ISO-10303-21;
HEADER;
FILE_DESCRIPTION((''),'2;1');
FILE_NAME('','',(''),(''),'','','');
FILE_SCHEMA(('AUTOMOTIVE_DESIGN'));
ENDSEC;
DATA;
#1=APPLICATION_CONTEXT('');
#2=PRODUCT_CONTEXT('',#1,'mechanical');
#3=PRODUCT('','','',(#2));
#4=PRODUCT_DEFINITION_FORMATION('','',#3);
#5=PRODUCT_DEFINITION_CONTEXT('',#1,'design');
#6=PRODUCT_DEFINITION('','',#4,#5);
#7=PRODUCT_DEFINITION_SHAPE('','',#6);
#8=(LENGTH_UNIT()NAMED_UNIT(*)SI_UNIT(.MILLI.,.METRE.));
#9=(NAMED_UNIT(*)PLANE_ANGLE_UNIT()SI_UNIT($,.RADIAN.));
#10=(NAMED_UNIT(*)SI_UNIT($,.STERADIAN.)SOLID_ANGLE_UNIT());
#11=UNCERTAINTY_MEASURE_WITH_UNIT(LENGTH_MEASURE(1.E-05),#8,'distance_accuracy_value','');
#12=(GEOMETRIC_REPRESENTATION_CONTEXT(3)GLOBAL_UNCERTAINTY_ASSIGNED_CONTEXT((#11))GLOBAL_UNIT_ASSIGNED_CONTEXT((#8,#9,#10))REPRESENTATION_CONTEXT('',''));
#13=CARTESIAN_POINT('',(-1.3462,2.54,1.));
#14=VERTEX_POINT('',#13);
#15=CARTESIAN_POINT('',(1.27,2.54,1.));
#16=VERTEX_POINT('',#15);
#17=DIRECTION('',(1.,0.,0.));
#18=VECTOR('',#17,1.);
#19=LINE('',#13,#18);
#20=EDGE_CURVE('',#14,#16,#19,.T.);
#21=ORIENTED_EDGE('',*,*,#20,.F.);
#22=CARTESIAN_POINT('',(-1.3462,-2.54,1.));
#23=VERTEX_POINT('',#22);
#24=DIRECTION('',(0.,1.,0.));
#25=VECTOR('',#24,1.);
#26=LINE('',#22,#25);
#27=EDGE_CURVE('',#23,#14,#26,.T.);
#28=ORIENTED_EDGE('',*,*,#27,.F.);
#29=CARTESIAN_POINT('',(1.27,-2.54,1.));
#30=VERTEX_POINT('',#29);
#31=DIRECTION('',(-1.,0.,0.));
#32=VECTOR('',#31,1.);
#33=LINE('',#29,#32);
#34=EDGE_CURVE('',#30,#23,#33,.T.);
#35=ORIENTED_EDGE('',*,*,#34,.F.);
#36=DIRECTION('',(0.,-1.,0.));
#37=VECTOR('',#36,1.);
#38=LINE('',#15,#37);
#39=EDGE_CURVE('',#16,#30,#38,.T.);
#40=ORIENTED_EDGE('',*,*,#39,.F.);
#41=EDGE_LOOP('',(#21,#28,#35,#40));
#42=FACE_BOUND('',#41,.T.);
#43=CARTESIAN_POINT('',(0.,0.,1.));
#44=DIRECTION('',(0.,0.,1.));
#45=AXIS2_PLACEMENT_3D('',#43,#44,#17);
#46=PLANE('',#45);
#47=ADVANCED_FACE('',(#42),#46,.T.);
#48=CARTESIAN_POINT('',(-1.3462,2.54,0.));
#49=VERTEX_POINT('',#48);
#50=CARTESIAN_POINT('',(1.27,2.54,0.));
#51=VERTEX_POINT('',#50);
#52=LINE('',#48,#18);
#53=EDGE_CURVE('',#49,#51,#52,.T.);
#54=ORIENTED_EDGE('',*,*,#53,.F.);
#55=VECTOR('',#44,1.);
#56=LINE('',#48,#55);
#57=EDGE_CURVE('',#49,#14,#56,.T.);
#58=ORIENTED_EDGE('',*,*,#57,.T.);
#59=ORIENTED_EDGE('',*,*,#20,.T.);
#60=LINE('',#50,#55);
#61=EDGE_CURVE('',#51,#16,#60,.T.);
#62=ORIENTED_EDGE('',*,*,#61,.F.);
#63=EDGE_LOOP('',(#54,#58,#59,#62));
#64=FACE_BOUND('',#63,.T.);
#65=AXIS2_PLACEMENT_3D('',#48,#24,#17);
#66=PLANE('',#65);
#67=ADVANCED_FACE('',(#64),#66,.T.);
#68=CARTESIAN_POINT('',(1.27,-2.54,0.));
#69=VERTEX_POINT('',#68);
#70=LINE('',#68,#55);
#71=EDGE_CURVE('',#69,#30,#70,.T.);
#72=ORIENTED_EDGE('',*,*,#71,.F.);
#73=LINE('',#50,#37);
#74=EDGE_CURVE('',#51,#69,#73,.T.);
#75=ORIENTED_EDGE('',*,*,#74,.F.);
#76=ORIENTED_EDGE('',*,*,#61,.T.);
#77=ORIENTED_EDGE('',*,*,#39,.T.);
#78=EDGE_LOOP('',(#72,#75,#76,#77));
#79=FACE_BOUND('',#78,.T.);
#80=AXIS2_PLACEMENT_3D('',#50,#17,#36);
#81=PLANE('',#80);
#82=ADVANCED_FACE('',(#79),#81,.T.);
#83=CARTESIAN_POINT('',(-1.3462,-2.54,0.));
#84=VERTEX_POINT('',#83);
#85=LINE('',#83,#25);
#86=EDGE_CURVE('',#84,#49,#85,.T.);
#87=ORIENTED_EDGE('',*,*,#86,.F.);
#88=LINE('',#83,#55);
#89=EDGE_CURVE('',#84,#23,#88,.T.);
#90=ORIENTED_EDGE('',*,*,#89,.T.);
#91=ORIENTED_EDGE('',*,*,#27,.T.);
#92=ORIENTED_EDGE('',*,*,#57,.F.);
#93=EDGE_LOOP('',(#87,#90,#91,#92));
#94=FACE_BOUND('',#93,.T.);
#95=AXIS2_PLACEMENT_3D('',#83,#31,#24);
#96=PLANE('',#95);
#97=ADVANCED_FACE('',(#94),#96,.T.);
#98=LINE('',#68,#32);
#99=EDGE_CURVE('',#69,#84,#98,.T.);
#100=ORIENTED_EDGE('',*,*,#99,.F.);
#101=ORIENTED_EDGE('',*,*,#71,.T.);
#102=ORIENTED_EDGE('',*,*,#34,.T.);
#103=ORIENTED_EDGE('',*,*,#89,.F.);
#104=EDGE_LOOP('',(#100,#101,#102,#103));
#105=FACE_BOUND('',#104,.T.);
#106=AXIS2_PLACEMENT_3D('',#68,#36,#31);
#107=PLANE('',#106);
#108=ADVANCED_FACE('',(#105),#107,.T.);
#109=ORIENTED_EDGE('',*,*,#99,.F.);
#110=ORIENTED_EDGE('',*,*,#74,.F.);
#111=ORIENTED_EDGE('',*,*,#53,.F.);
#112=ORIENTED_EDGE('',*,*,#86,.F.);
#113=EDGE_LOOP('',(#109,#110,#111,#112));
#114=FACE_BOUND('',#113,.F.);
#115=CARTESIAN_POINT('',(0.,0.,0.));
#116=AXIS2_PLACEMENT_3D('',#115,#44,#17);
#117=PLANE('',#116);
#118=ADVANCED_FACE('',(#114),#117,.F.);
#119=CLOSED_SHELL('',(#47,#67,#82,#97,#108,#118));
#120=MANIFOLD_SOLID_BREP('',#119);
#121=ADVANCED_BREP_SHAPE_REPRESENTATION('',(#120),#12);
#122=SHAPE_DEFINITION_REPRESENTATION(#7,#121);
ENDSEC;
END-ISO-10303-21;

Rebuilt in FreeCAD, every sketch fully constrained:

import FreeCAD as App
import Part
import Sketcher
from FreeCAD import Vector
Q = App.Units.Quantity

doc = App.newDocument("Part")
body = doc.addObject("PartDesign::Body", "Body")

sketch1 = doc.addObject("Sketcher::SketchObject", "Sketch")
body.addObject(sketch1)
sketch1.AttachmentSupport = (doc.XY_Plane, [""])
sketch1.MapMode = "FlatFace"
sketch1.addGeometry(Part.LineSegment(Vector(1.27, 2.54, 0), Vector(-1.3462, 2.54, 0)), False)
sketch1.addGeometry(Part.LineSegment(Vector(-1.3462, 2.54, 0), Vector(-1.3462, -2.54, 0)), False)
sketch1.addGeometry(Part.LineSegment(Vector(-1.3462, -2.54, 0), Vector(1.27, -2.54, 0)), False)
sketch1.addGeometry(Part.LineSegment(Vector(1.27, -2.54, 0), Vector(1.27, 2.54, 0)), False)
sketch1.addConstraint(Sketcher.Constraint("Coincident", 0, 2, 1, 1))
sketch1.addConstraint(Sketcher.Constraint("Coincident", 1, 2, 2, 1))
sketch1.addConstraint(Sketcher.Constraint("Coincident", 2, 2, 3, 1))
sketch1.addConstraint(Sketcher.Constraint("Coincident", 3, 2, 0, 1))
sketch1.addConstraint(Sketcher.Constraint("Horizontal", 0))
sketch1.addConstraint(Sketcher.Constraint("Vertical", 1))
sketch1.addConstraint(Sketcher.Constraint("Horizontal", 2))
sketch1.addConstraint(Sketcher.Constraint("Vertical", 3))
sketch1.addConstraint(Sketcher.Constraint("DistanceY", 1, 2, 1, 1, Q("0.2 in")))
sketch1.addConstraint(Sketcher.Constraint("DistanceY", -1, 1, 0, 2, Q("0.1 in")))
sketch1.addConstraint(Sketcher.Constraint("DistanceX", 0, 2, 0, 1, Q("0.103 in")))
sketch1.addConstraint(Sketcher.Constraint("DistanceX", -1, 1, 2, 2, Q("0.05 in")))
pad1 = doc.addObject("PartDesign::Pad", "Pad")
body.addObject(pad1)
pad1.Profile = sketch1
pad1.Length = 1

doc.recompute()
